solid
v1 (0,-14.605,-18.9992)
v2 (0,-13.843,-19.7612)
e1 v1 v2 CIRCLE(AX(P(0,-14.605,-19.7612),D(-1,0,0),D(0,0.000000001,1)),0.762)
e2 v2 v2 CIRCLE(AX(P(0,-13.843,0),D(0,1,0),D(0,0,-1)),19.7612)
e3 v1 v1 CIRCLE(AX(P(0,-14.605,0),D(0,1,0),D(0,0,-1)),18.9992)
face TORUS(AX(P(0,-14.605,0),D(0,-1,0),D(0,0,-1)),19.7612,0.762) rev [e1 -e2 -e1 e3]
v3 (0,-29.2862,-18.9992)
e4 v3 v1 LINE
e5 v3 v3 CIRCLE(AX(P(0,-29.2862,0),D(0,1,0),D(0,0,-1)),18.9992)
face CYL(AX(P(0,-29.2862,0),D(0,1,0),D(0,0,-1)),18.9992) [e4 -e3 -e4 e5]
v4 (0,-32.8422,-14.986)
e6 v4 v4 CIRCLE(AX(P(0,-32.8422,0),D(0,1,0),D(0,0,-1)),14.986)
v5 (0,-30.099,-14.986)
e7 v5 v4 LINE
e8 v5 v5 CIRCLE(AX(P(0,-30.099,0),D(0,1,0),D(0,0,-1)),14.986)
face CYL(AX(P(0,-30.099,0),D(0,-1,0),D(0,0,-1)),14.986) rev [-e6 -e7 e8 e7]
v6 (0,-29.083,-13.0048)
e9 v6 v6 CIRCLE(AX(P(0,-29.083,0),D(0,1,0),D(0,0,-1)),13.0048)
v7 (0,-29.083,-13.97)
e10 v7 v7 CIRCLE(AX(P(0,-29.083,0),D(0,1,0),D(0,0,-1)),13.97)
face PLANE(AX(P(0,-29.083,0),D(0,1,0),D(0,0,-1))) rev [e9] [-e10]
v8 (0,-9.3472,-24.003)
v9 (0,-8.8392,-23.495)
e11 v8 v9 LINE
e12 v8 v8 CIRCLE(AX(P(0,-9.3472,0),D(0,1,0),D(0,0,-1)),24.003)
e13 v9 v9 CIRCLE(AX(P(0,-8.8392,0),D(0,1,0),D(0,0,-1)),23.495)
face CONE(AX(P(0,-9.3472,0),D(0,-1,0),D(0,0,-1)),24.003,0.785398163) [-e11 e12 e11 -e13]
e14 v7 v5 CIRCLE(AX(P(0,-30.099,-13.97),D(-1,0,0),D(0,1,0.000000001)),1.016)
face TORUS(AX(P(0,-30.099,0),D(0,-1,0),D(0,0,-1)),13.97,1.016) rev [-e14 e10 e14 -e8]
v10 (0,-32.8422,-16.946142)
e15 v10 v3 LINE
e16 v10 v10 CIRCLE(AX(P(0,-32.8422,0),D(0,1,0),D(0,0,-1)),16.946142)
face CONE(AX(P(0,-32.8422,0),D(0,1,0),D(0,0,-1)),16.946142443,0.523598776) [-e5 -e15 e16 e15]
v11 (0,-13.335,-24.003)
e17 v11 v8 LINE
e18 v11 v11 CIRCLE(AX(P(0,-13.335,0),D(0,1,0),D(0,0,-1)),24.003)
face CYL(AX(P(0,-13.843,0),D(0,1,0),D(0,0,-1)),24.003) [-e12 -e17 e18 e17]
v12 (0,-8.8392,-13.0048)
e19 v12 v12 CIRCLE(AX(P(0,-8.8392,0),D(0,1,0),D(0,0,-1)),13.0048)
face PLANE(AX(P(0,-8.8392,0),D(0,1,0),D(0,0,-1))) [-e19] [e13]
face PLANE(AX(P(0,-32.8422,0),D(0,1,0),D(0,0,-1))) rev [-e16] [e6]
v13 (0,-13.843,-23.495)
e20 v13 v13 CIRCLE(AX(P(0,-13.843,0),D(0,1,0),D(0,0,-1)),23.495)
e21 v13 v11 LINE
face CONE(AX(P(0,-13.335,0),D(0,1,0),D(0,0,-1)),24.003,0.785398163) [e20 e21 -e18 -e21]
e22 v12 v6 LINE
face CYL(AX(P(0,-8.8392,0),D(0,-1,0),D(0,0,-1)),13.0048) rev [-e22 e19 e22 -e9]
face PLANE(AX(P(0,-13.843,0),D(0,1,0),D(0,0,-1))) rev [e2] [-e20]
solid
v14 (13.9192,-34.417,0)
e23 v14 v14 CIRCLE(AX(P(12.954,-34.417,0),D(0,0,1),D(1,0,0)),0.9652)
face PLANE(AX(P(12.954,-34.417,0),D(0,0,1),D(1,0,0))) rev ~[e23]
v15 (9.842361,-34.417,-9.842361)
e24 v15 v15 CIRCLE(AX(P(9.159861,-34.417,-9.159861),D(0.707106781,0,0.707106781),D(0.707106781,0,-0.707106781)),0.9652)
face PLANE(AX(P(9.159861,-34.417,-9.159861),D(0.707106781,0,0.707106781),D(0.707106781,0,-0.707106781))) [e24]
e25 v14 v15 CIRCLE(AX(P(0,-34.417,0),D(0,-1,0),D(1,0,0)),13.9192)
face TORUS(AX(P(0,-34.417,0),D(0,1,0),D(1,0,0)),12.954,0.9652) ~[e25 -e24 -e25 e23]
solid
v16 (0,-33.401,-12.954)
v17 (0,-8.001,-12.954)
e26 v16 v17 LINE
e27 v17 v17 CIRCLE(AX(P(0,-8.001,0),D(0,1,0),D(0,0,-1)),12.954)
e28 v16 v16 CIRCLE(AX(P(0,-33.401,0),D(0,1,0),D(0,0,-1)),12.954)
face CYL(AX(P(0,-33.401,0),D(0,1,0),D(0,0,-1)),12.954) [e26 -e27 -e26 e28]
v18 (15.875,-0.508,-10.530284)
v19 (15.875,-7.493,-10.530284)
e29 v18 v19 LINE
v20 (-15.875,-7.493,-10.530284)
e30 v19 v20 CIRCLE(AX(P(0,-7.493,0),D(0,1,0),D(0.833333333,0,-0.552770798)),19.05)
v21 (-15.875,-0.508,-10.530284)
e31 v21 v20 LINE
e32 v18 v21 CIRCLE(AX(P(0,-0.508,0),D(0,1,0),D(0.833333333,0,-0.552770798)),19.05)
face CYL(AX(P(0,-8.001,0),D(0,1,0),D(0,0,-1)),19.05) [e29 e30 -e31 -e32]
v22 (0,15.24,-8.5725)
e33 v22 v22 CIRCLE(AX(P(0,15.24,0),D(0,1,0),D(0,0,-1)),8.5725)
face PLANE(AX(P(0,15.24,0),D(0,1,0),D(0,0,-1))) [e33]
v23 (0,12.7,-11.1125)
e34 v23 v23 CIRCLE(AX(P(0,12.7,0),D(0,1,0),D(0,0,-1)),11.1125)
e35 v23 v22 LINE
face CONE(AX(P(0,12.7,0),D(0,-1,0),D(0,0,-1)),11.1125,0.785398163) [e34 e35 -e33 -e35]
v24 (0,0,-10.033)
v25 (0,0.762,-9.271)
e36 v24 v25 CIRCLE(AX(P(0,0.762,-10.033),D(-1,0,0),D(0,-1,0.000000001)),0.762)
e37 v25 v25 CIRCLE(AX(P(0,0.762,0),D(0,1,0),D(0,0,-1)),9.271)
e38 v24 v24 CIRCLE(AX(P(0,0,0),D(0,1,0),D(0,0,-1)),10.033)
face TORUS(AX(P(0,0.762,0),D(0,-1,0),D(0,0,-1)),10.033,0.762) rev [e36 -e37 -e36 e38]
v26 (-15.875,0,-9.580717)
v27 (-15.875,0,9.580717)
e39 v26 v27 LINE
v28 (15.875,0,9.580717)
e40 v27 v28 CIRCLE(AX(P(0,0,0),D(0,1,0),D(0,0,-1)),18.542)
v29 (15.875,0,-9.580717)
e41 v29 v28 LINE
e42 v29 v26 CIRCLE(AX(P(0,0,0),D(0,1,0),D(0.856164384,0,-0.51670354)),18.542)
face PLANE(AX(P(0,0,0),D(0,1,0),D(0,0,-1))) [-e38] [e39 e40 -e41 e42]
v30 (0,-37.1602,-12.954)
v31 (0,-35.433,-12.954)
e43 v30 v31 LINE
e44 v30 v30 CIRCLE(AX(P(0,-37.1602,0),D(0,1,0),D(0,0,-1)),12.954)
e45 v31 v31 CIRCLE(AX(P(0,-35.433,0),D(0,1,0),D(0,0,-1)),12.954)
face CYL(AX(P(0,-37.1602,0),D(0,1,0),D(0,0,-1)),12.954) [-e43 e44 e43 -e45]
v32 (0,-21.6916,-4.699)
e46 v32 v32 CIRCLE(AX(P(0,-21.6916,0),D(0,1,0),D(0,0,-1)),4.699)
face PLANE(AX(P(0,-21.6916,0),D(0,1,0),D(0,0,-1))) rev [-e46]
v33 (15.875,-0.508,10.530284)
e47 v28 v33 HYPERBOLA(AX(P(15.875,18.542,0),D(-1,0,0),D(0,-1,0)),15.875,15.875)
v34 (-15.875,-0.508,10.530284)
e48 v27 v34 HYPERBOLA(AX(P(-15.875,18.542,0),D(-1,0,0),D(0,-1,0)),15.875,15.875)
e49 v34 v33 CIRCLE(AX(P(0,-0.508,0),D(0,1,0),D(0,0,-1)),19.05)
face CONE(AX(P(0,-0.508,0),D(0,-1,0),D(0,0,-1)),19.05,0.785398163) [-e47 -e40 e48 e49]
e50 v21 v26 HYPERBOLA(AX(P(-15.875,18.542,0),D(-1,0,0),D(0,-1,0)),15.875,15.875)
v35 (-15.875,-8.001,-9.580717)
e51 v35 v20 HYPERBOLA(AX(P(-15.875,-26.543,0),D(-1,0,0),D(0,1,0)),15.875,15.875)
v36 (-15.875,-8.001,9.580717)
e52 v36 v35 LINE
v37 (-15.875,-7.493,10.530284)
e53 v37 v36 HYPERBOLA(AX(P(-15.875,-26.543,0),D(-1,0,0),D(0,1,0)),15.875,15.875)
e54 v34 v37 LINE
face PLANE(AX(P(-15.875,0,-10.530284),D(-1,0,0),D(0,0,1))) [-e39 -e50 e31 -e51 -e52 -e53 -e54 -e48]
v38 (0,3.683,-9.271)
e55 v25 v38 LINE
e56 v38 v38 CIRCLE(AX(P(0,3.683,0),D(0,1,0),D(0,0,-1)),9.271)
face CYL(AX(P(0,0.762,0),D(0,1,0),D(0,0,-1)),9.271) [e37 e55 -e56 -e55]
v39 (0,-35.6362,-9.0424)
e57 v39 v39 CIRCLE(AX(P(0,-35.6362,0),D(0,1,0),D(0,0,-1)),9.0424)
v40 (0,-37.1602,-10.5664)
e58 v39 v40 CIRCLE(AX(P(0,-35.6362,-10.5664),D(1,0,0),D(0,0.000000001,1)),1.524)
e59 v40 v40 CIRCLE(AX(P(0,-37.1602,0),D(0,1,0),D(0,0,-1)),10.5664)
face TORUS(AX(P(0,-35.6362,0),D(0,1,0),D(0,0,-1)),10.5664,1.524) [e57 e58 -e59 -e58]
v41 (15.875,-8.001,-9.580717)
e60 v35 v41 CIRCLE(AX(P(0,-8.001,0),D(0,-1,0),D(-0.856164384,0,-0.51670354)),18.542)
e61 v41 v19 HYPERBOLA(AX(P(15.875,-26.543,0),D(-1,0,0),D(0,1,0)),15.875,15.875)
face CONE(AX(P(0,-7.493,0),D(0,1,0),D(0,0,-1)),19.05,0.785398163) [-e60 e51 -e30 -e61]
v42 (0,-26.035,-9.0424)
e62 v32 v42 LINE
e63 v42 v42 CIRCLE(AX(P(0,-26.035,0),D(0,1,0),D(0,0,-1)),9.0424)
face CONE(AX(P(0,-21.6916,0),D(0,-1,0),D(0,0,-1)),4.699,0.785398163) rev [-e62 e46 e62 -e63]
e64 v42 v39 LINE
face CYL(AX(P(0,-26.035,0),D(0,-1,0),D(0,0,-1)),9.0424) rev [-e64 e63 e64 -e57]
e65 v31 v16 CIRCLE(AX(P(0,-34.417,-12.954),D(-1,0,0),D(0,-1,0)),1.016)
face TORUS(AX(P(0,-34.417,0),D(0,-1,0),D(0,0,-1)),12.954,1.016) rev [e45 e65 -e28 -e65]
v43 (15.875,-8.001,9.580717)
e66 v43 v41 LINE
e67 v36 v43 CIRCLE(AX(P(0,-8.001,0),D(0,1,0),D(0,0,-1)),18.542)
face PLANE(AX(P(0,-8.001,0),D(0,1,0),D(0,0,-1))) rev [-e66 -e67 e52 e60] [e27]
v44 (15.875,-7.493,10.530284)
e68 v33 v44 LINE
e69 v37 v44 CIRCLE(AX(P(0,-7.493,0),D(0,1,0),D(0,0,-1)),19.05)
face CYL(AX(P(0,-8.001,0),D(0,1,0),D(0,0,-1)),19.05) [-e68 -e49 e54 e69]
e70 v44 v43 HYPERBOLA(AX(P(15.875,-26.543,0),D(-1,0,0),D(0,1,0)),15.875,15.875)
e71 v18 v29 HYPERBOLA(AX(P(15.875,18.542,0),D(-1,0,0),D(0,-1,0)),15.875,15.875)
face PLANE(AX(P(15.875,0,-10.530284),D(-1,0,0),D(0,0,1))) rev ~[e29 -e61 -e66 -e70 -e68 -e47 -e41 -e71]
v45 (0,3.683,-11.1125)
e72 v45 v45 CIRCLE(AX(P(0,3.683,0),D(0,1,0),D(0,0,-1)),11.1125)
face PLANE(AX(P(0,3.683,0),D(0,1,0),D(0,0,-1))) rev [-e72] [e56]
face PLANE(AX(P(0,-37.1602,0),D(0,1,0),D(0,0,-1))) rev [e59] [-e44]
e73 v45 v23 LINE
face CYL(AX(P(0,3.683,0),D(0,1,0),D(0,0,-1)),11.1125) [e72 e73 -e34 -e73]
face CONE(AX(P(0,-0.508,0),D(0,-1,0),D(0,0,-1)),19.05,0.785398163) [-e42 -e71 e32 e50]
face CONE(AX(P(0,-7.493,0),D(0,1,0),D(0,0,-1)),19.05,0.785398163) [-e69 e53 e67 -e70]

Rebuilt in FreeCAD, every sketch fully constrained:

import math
import FreeCAD as App
import Part
import Sketcher

V = App.Vector
Q = App.Units.Quantity


def edges_at(feature, points):
    """Names of the edges that pass closest to the given points."""
    edges = feature.Shape.Edges
    near = lambda p: min(range(len(edges)), key=lambda i: edges[i].distToShape(Part.Vertex(*p))[0])
    return sorted({f"Edge{near(p) + 1}" for p in points})

doc = App.newDocument("Part")
params = doc.addObject("Spreadsheet::Sheet", "Params")
for row, (alias, value) in enumerate([
    ("sketch1_height", "1 in"),
    ("sketch1_radius", "0.06 in"),
    ("sketch1_radius2", "0.04 in"),
    ("sketch1_radius3", "0.03 in"),
    ("sketch1_width", "0.24 in"),
    ("revolution_angle", "360 deg"),
    ("chamfer_size", "0.02 in"),
    ("chamfer2_size", "0.1 in"),
    ("sketch2_radius", "0.75 in"),
    ("sketch3_radius", "0.04 in"),
    ("sketch3_radius2", "0.03 in"),
    ("sketch3_width", "0.038 in"),
    ("sketch3_width2", "0.167 in"),
    ("sketch3_width3", "0.433 in"),
    ("revolution2_angle", "360 deg"),
    ("chamfer3_size", "0.02 in"),
    ("sketch4_diameter", "0.076 in"),
    ("revolution3_angle", "315 deg"),
], start=1):
    params.set(f"A{row}", alias)
    params.set(f"B{row}", "=" + value)
    params.setAlias(f"B{row}", alias)

body = doc.addObject("PartDesign::Body", "Body")

# Sketch on XY plane
sketch1 = body.newObject("Sketcher::SketchObject", "Sketch")
sketch1.AttachmentSupport = (doc.getObject("XY_Plane"), [""])
sketch1.MapMode = "FlatFace"
sketch1.addGeometry(Part.LineSegment(V(0, 15.2, 0), V(0, -21.7, 0)), False)
sketch1.addGeometry(Part.LineSegment(V(0, -21.7, 0), V(4.7, -21.7, 0)), False)
sketch1.addGeometry(Part.LineSegment(V(4.7, -21.7, 0), V(9, -26, 0)), False)
sketch1.addGeometry(Part.LineSegment(V(9, -26, 0), V(9, -35.6, 0)), False)
sketch1.addGeometry(Part.ArcOfCircle(Part.Circle(V(10.6, -35.6, 0), V(0, 0, 1), 1.5), math.radians(180), math.radians(270)), False)
sketch1.addGeometry(Part.LineSegment(V(10.6, -37.2, 0), V(13, -37.2, 0)), False)
sketch1.addGeometry(Part.LineSegment(V(13, -37.2, 0), V(13, -35.4, 0)), False)
sketch1.addGeometry(Part.ArcOfCircle(Part.Circle(V(13, -34.4, 0), V(0, 0, 1), 1), math.radians(90), math.radians(270)), False)
sketch1.addGeometry(Part.LineSegment(V(13, -33.4, 0), V(13, -8, 0)), False)
sketch1.addGeometry(Part.LineSegment(V(13, -8, 0), V(19.1, -8, 0)), False)
sketch1.addGeometry(Part.LineSegment(V(19.1, -8, 0), V(19.1, 0, 0)), False)
sketch1.addGeometry(Part.LineSegment(V(19.1, 0, 0), V(10, 0, 0)), False)
sketch1.addGeometry(Part.ArcOfCircle(Part.Circle(V(10, 0.8, 0), V(0, 0, 1), 0.8), math.radians(-180), math.radians(-90)), False)
sketch1.addGeometry(Part.LineSegment(V(9.3, 0.8, 0), V(9.3, 3.7, 0)), False)
sketch1.addGeometry(Part.LineSegment(V(9.3, 3.7, 0), V(11.1, 3.7, 0)), False)
sketch1.addGeometry(Part.LineSegment(V(11.1, 3.7, 0), V(11.1, 15.2, 0)), False)
sketch1.addGeometry(Part.LineSegment(V(11.1, 15.2, 0), V(0, 15.2, 0)), False)
sketch1.addConstraint(Sketcher.Constraint("Coincident", 0, 2, 1, 1))
sketch1.addConstraint(Sketcher.Constraint("Coincident", 1, 2, 2, 1))
sketch1.addConstraint(Sketcher.Constraint("Coincident", 2, 2, 3, 1))
sketch1.addConstraint(Sketcher.Constraint("Tangent", 3, 2, 4, 1))
sketch1.addConstraint(Sketcher.Constraint("Tangent", 4, 2, 5, 1))
sketch1.addConstraint(Sketcher.Constraint("Coincident", 5, 2, 6, 1))
sketch1.addConstraint(Sketcher.Constraint("Coincident", 6, 2, 7, 2))
sketch1.addConstraint(Sketcher.Constraint("Coincident", 7, 1, 8, 1))
sketch1.addConstraint(Sketcher.Constraint("Coincident", 8, 2, 9, 1))
sketch1.addConstraint(Sketcher.Constraint("Coincident", 9, 2, 10, 1))
sketch1.addConstraint(Sketcher.Constraint("Coincident", 10, 2, 11, 1))
sketch1.addConstraint(Sketcher.Constraint("Tangent", 11, 2, 12, 2))
sketch1.addConstraint(Sketcher.Constraint("Tangent", 12, 1, 13, 1))
sketch1.addConstraint(Sketcher.Constraint("Coincident", 13, 2, 14, 1))
sketch1.addConstraint(Sketcher.Constraint("Coincident", 14, 2, 15, 1))
sketch1.addConstraint(Sketcher.Constraint("Coincident", 15, 2, 16, 1))
sketch1.addConstraint(Sketcher.Constraint("Coincident", 16, 2, 0, 1))
sketch1.addConstraint(Sketcher.Constraint("Vertical", 0))
sketch1.addConstraint(Sketcher.Constraint("Horizontal", 1))
sketch1.addConstraint(Sketcher.Constraint("Vertical", 3))
sketch1.addConstraint(Sketcher.Constraint("Horizontal", 5))
sketch1.addConstraint(Sketcher.Constraint("Vertical", 6))
sketch1.addConstraint(Sketcher.Constraint("Vertical", 8))
sketch1.addConstraint(Sketcher.Constraint("Horizontal", 9))
sketch1.addConstraint(Sketcher.Constraint("Vertical", 10))
sketch1.addConstraint(Sketcher.Constraint("Horizontal", 11))
sketch1.addConstraint(Sketcher.Constraint("Vertical", 13))
sketch1.addConstraint(Sketcher.Constraint("Horizontal", 14))
sketch1.addConstraint(Sketcher.Constraint("Vertical", 15))
sketch1.addConstraint(Sketcher.Constraint("Horizontal", 16))
sketch1.addConstraint(Sketcher.Constraint("PointOnObject", 0, 2, -2))
sketch1.addConstraint(Sketcher.Constraint("PointOnObject", 10, 2, -1))
sketch1.addConstraint(Sketcher.Constraint("Vertical", 7, 3, 5, 2))
sketch1.addConstraint(Sketcher.Constraint("Vertical", 6, 2, 7, 1))
sketch1.addConstraint(Sketcher.Constraint("DistanceY", 8, 1, 8, 2, Q("1 in")))
sketch1.addConstraint(Sketcher.Constraint("Radius", 4, Q("0.06 in")))
sketch1.addConstraint(Sketcher.Constraint("Radius", 7, Q("0.04 in")))
sketch1.addConstraint(Sketcher.Constraint("Radius", 12, Q("0.03 in")))
sketch1.addConstraint(Sketcher.Constraint("Angle", 2, Q("-45 deg")))
sketch1.addConstraint(Sketcher.Constraint("DistanceX", 9, 1, 9, 2, Q("0.24 in")))
sketch1.addConstraint(Sketcher.Constraint("DistanceY", -1, 1, 15, 2, Q("0.6 in")))
sketch1.addConstraint(Sketcher.Constraint("DistanceX", 1, 1, 1, 2, Q("0.185 in")))
sketch1.addConstraint(Sketcher.Constraint("DistanceX", 5, 1, 5, 2, Q("0.094 in")))
sketch1.addConstraint(Sketcher.Constraint("DistanceX", 11, 2, 11, 1, Q("0.355 in")))
sketch1.addConstraint(Sketcher.Constraint("DistanceX", 16, 2, 16, 1, Q("0.4375 in")))
sketch1.addConstraint(Sketcher.Constraint("DistanceY", 0, 2, 0, 1, Q("1.454 in")))
sketch1.addConstraint(Sketcher.Constraint("DistanceY", 3, 2, 3, 1, Q("0.378 in")))
sketch1.addConstraint(Sketcher.Constraint("DistanceY", 6, 1, 6, 2, Q("0.068 in")))
sketch1.addConstraint(Sketcher.Constraint("DistanceY", 10, 1, 10, 2, Q("0.315 in")))
sketch1.addConstraint(Sketcher.Constraint("DistanceY", 13, 1, 13, 2, Q("0.115 in")))
sketch1.setExpression("Constraints[34]", "Params.sketch1_height")
sketch1.setExpression("Constraints[35]", "Params.sketch1_radius")
sketch1.setExpression("Constraints[36]", "Params.sketch1_radius2")
sketch1.setExpression("Constraints[37]", "Params.sketch1_radius3")
sketch1.setExpression("Constraints[39]", "Params.sketch1_width")
revolution = body.newObject("PartDesign::Revolution", "Revolution")
revolution.Profile = sketch1
revolution.ReferenceAxis = (sketch1, ["V_Axis"])
revolution.setExpression("Angle", "Params.revolution_angle")
doc.recompute()

chamfer = body.newObject("PartDesign::Chamfer", "Chamfer")
chamfer.Base = (revolution, edges_at(revolution, [(0, -8.001, 19.05), (0, 0, 19.05)]))
chamfer.setExpression("Size", "Params.chamfer_size")
doc.recompute()

chamfer2 = body.newObject("PartDesign::Chamfer", "Chamfer001")
chamfer2.Base = (chamfer, edges_at(chamfer, [(0, 15.24, 11.113)]))
chamfer2.setExpression("Size", "Params.chamfer2_size")

# Sketch on XZ plane
sketch2 = body.newObject("Sketcher::SketchObject", "Sketch001")
sketch2.AttachmentSupport = (doc.getObject("XZ_Plane"), [""])
sketch2.MapMode = "FlatFace"
sketch2.addGeometry(Part.LineSegment(V(-16, 11, 0), V(-16, -11, 0)), False)
sketch2.addGeometry(Part.ArcOfCircle(Part.Circle(V(0, 0, 0), V(0, 0, 1), 19), math.radians(146), math.radians(214)), False)
sketch2.addGeometry(Part.LineSegment(V(16, -11, 0), V(16, 11, 0)), False)
sketch2.addGeometry(Part.ArcOfCircle(Part.Circle(V(0, 0, 0), V(0, 0, 1), 19), math.radians(-34), math.radians(34)), False)
sketch2.addConstraint(Sketcher.Constraint("Coincident", 0, 1, 1, 1))
sketch2.addConstraint(Sketcher.Constraint("Coincident", 1, 2, 0, 2))
sketch2.addConstraint(Sketcher.Constraint("Coincident", 2, 1, 3, 1))
sketch2.addConstraint(Sketcher.Constraint("Coincident", 3, 2, 2, 2))
sketch2.addConstraint(Sketcher.Constraint("Vertical", 0))
sketch2.addConstraint(Sketcher.Constraint("Vertical", 2))
sketch2.addConstraint(Sketcher.Constraint("Coincident", 1, 3, -1, 1))
sketch2.addConstraint(Sketcher.Constraint("Coincident", 3, 3, -1, 1))
sketch2.addConstraint(Sketcher.Constraint("Equal", 1, 3))
sketch2.addConstraint(Sketcher.Constraint("Horizontal", 1, 2, 2, 1))
sketch2.addConstraint(Sketcher.Constraint("Radius", 1, Q("0.75 in")))
sketch2.addConstraint(Sketcher.Constraint("DistanceX", 1, 2, 2, 1, Q("1.25 in")))
sketch2.setExpression("Constraints[10]", "Params.sketch2_radius")
pocket1 = body.newObject("PartDesign::Pocket", "Pocket")
pocket1.Profile = sketch2
pocket1.Type = "ThroughAll"
pocket1.Reversed = True
body2 = doc.addObject("PartDesign::Body", "Body001")

# Sketch on XY plane
sketch3 = body2.newObject("Sketcher::SketchObject", "Sketch002")
sketch3.AttachmentSupport = (doc.getObject("XY_Plane001"), [""])
sketch3.MapMode = "FlatFace"
sketch3.addGeometry(Part.LineSegment(V(13, -8.8, 0), V(13, -29.1, 0)), False)
sketch3.addGeometry(Part.LineSegment(V(13, -29.1, 0), V(14, -29.1, 0)), False)
sketch3.addGeometry(Part.ArcOfCircle(Part.Circle(V(14, -30.1, 0), V(0, 0, 1), 1), math.radians(0), math.radians(90)), False)
sketch3.addGeometry(Part.LineSegment(V(15, -30.1, 0), V(15, -32.8, 0)), False)
sketch3.addGeometry(Part.LineSegment(V(15, -32.8, 0), V(16.9, -32.8, 0)), False)
sketch3.addGeometry(Part.LineSegment(V(16.9, -32.8, 0), V(19, -29.3, 0)), False)
sketch3.addGeometry(Part.LineSegment(V(19, -29.3, 0), V(19, -14.6, 0)), False)
sketch3.addGeometry(Part.ArcOfCircle(Part.Circle(V(19.8, -14.6, 0), V(0, 0, 1), 0.8), math.radians(90), math.radians(180)), False)
sketch3.addGeometry(Part.LineSegment(V(19.8, -13.8, 0), V(24, -13.8, 0)), False)
sketch3.addGeometry(Part.LineSegment(V(24, -13.8, 0), V(24, -8.8, 0)), False)
sketch3.addGeometry(Part.LineSegment(V(24, -8.8, 0), V(13, -8.8, 0)), False)
sketch3.addConstraint(Sketcher.Constraint("Coincident", 0, 2, 1, 1))
sketch3.addConstraint(Sketcher.Constraint("Tangent", 1, 2, 2, 2))
sketch3.addConstraint(Sketcher.Constraint("Tangent", 2, 1, 3, 1))
sketch3.addConstraint(Sketcher.Constraint("Coincident", 3, 2, 4, 1))
sketch3.addConstraint(Sketcher.Constraint("Coincident", 4, 2, 5, 1))
sketch3.addConstraint(Sketcher.Constraint("Coincident", 5, 2, 6, 1))
sketch3.addConstraint(Sketcher.Constraint("Tangent", 6, 2, 7, 2))
sketch3.addConstraint(Sketcher.Constraint("Tangent", 7, 1, 8, 1))
sketch3.addConstraint(Sketcher.Constraint("Coincident", 8, 2, 9, 1))
sketch3.addConstraint(Sketcher.Constraint("Coincident", 9, 2, 10, 1))
sketch3.addConstraint(Sketcher.Constraint("Coincident", 10, 2, 0, 1))
sketch3.addConstraint(Sketcher.Constraint("Vertical", 0))
sketch3.addConstraint(Sketcher.Constraint("Horizontal", 1))
sketch3.addConstraint(Sketcher.Constraint("Vertical", 3))
sketch3.addConstraint(Sketcher.Constraint("Horizontal", 4))
sketch3.addConstraint(Sketcher.Constraint("Vertical", 6))
sketch3.addConstraint(Sketcher.Constraint("Horizontal", 8))
sketch3.addConstraint(Sketcher.Constraint("Vertical", 9))
sketch3.addConstraint(Sketcher.Constraint("Horizontal", 10))
sketch3.addConstraint(Sketcher.Constraint("Radius", 2, Q("0.04 in")))
sketch3.addConstraint(Sketcher.Constraint("Radius", 7, Q("0.03 in")))
sketch3.addConstraint(Sketcher.Constraint("Angle", 5, Q("60 deg")))
sketch3.addConstraint(Sketcher.Constraint("DistanceY", 1, 2, 7, 1, Q("0.6 in")))
sketch3.addConstraint(Sketcher.Constraint("DistanceX", 1, 1, 1, 2, Q("0.038 in")))
sketch3.addConstraint(Sketcher.Constraint("DistanceX", 8, 1, 8, 2, Q("0.167 in")))
sketch3.addConstraint(Sketcher.Constraint("DistanceX", 10, 2, 10, 1, Q("0.433 in")))
sketch3.addConstraint(Sketcher.Constraint("DistanceY", 0, 2, 0, 1, Q("0.797 in")))
sketch3.addConstraint(Sketcher.Constraint("DistanceY", 3, 2, 3, 1, Q("0.108 in")))
sketch3.addConstraint(Sketcher.Constraint("DistanceY", 6, 1, 6, 2, Q("0.578 in")))
sketch3.addConstraint(Sketcher.Constraint("DistanceX", -1, 1, 2, 3, Q("0.55 in")))
sketch3.addConstraint(Sketcher.Constraint("DistanceY", 2, 3, -1, 1, Q("1.185 in")))
sketch3.setExpression("Constraints[19]", "Params.sketch3_radius")
sketch3.setExpression("Constraints[20]", "Params.sketch3_radius2")
sketch3.setExpression("Constraints[23]", "Params.sketch3_width")
sketch3.setExpression("Constraints[24]", "Params.sketch3_width2")
sketch3.setExpression("Constraints[25]", "Params.sketch3_width3")
revolution2 = body2.newObject("PartDesign::Revolution", "Revolution001")
revolution2.Profile = sketch3
revolution2.ReferenceAxis = (sketch3, ["V_Axis"])
revolution2.setExpression("Angle", "Params.revolution2_angle")
doc.recompute()

chamfer3 = body2.newObject("PartDesign::Chamfer", "Chamfer002")
chamfer3.Base = (revolution2, edges_at(revolution2, [(0, -8.839, 24.003), (0, -13.843, 24.003)]))
chamfer3.setExpression("Size", "Params.chamfer3_size")
body3 = doc.addObject("PartDesign::Body", "Body002")

# Sketch on XY plane
sketch4 = body3.newObject("Sketcher::SketchObject", "Sketch003")
sketch4.AttachmentSupport = (doc.getObject("XY_Plane002"), [""])
sketch4.MapMode = "FlatFace"
sketch4.addGeometry(Part.Circle(V(13, -34.4, 0), V(0, 0, 1), 1), False)
sketch4.addConstraint(Sketcher.Constraint("Diameter", 0, Q("0.076 in")))
sketch4.addConstraint(Sketcher.Constraint("DistanceX", -1, 1, 0, 3, Q("0.51 in")))
sketch4.addConstraint(Sketcher.Constraint("DistanceY", 0, 3, -1, 1, Q("1.355 in")))
sketch4.setExpression("Constraints[0]", "Params.sketch4_diameter")
revolution3 = body3.newObject("PartDesign::Revolution", "Revolution002")
revolution3.Profile = sketch4
revolution3.ReferenceAxis = (sketch4, ["V_Axis"])
revolution3.setExpression("Angle", "Params.revolution3_angle")
revolution3.Reversed = True

doc.recompute()
